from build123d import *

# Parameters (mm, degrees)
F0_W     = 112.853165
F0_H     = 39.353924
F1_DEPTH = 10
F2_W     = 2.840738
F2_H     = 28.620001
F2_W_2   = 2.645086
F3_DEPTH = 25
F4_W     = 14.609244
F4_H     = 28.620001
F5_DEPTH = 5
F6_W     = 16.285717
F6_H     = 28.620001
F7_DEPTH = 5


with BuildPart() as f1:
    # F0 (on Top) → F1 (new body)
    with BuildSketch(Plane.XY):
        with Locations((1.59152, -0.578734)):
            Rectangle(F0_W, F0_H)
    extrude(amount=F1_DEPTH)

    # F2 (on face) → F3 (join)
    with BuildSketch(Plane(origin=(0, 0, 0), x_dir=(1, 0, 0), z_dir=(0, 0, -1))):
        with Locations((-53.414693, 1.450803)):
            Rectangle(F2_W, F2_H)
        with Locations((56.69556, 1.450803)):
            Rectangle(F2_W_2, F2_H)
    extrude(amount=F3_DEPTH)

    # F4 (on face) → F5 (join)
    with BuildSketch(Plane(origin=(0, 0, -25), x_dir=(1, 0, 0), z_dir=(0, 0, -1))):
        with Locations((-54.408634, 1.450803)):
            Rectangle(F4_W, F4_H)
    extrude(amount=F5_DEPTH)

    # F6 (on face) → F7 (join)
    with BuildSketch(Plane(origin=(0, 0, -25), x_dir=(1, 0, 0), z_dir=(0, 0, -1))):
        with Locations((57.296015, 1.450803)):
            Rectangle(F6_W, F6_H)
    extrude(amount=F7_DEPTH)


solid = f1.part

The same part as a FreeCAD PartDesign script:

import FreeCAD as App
import Part
import Sketcher


def add_polygon(sketch, points):
    """Adds a closed chain of lines whose ends are joined by coincident constraints."""
    first, n = sketch.GeometryCount, len(points)
    for a, b in zip(points, points[1:] + points[:1]):
        sketch.addGeometry(Part.LineSegment(App.Vector(*a, 0), App.Vector(*b, 0)), False)
    for i in range(n):
        sketch.addConstraint(Sketcher.Constraint("Coincident", first + i, 2, first + (i + 1) % n, 1))

doc = App.newDocument("Part")
body = doc.addObject("PartDesign::Body", "Body")

sketch1 = body.newObject("Sketcher::SketchObject", "Sketch")
sketch1.AttachmentSupport = (doc.getObject("XY_Plane"), [""])
sketch1.MapMode = "FlatFace"
add_polygon(sketch1, [(-55, 19), (-55, -20), (58, -20), (58, 19)])
sketch1.addConstraint([
    Sketcher.Constraint("Vertical", 0),
    Sketcher.Constraint("Horizontal", 1),
    Sketcher.Constraint("Vertical", 2),
    Sketcher.Constraint("Horizontal", 3),
    Sketcher.Constraint("DistanceX", 1, 1, 1, 2, 112.853165),
    Sketcher.Constraint("DistanceY", 0, 2, 0, 1, 39.353924),
    Sketcher.Constraint("DistanceX", 0, 2, -1, 1, 54.835062),
    Sketcher.Constraint("DistanceY", 0, 2, -1, 1, 20.255696),
])
pad1 = body.newObject("PartDesign::Pad", "Pad")
pad1.Profile = sketch1
pad1.Length = 10

sketch2 = body.newObject("Sketcher::SketchObject", "Sketch001")
sketch2.AttachmentSupport = (doc.getObject("XY_Plane"), [""])
sketch2.MapMode = "FlatFace"
add_polygon(sketch2, [(-54.8, -15.8), (-54.8, 12.9), (-52, 12.9), (-52, -15.8)])
add_polygon(sketch2, [(55.4, -15.8), (55.4, 12.9), (58, 12.9), (58, -15.8)])
sketch2.addConstraint([
    Sketcher.Constraint("Vertical", 0),
    Sketcher.Constraint("Horizontal", 1),
    Sketcher.Constraint("Vertical", 2),
    Sketcher.Constraint("Horizontal", 3),
    Sketcher.Constraint("Vertical", 4),
    Sketcher.Constraint("Horizontal", 5),
    Sketcher.Constraint("Vertical", 6),
    Sketcher.Constraint("Horizontal", 7),
    Sketcher.Constraint("Horizontal", 1, 2, 4, 2),
    Sketcher.Constraint("Horizontal", 3, 2, 6, 2),
    Sketcher.Constraint("DistanceY", 0, 1, 0, 2, 28.620001),
    Sketcher.Constraint("DistanceX", 1, 1, 1, 2, 2.840738),
    Sketcher.Constraint("DistanceX", 5, 1, 5, 2, 2.645086),
    Sketcher.Constraint("DistanceX", 1, 2, 4, 2, 107.367341),
    Sketcher.Constraint("DistanceX", 0, 2, -1, 1, 54.835062),
    Sketcher.Constraint("DistanceY", -1, 1, 0, 2, 12.859198),
])
pad2 = body.newObject("PartDesign::Pad", "Pad001")
pad2.Profile = sketch2
pad2.Length = 25
pad2.Reversed = True

sketch3 = body.newObject("Sketcher::SketchObject", "Sketch002")
sketch3.AttachmentSupport = (doc.getObject("XY_Plane"), [""])
sketch3.MapMode = "FlatFace"
sketch3.AttachmentOffset = App.Placement(App.Vector(0, 0, -25), App.Rotation())
add_polygon(sketch3, [(-62, -16), (-62, 13), (-47, 13), (-47, -16)])
sketch3.addConstraint([
    Sketcher.Constraint("Vertical", 0),
    Sketcher.Constraint("Horizontal", 1),
    Sketcher.Constraint("Vertical", 2),
    Sketcher.Constraint("Horizontal", 3),
    Sketcher.Constraint("DistanceY", 0, 1, 0, 2, 28.620001),
    Sketcher.Constraint("DistanceX", 1, 1, 1, 2, 14.609244),
    Sketcher.Constraint("DistanceX", 1, 2, -1, 1, 47.104012),
    Sketcher.Constraint("DistanceY", -1, 1, 0, 2, 12.859198),
])
pad3 = body.newObject("PartDesign::Pad", "Pad002")
pad3.Profile = sketch3
pad3.Length = 5
pad3.Reversed = True

sketch4 = body.newObject("Sketcher::SketchObject", "Sketch003")
sketch4.AttachmentSupport = (doc.getObject("XY_Plane"), [""])
sketch4.MapMode = "FlatFace"
sketch4.AttachmentOffset = App.Placement(App.Vector(0, 0, -25), App.Rotation())
add_polygon(sketch4, [(49, -16), (49, 13), (65, 13), (65, -16)])
sketch4.addConstraint([
    Sketcher.Constraint("Vertical", 0),
    Sketcher.Constraint("Horizontal", 1),
    Sketcher.Constraint("Vertical", 2),
    Sketcher.Constraint("Horizontal", 3),
    Sketcher.Constraint("DistanceY", 0, 1, 0, 2, 28.620001),
    Sketcher.Constraint("DistanceX", 1, 1, 1, 2, 16.285717),
    Sketcher.Constraint("DistanceX", -1, 1, 0, 2, 49.153157),
    Sketcher.Constraint("DistanceY", -1, 1, 0, 2, 12.859198),
])
pad4 = body.newObject("PartDesign::Pad", "Pad003")
pad4.Profile = sketch4
pad4.Length = 5
pad4.Reversed = True

doc.recompute()
